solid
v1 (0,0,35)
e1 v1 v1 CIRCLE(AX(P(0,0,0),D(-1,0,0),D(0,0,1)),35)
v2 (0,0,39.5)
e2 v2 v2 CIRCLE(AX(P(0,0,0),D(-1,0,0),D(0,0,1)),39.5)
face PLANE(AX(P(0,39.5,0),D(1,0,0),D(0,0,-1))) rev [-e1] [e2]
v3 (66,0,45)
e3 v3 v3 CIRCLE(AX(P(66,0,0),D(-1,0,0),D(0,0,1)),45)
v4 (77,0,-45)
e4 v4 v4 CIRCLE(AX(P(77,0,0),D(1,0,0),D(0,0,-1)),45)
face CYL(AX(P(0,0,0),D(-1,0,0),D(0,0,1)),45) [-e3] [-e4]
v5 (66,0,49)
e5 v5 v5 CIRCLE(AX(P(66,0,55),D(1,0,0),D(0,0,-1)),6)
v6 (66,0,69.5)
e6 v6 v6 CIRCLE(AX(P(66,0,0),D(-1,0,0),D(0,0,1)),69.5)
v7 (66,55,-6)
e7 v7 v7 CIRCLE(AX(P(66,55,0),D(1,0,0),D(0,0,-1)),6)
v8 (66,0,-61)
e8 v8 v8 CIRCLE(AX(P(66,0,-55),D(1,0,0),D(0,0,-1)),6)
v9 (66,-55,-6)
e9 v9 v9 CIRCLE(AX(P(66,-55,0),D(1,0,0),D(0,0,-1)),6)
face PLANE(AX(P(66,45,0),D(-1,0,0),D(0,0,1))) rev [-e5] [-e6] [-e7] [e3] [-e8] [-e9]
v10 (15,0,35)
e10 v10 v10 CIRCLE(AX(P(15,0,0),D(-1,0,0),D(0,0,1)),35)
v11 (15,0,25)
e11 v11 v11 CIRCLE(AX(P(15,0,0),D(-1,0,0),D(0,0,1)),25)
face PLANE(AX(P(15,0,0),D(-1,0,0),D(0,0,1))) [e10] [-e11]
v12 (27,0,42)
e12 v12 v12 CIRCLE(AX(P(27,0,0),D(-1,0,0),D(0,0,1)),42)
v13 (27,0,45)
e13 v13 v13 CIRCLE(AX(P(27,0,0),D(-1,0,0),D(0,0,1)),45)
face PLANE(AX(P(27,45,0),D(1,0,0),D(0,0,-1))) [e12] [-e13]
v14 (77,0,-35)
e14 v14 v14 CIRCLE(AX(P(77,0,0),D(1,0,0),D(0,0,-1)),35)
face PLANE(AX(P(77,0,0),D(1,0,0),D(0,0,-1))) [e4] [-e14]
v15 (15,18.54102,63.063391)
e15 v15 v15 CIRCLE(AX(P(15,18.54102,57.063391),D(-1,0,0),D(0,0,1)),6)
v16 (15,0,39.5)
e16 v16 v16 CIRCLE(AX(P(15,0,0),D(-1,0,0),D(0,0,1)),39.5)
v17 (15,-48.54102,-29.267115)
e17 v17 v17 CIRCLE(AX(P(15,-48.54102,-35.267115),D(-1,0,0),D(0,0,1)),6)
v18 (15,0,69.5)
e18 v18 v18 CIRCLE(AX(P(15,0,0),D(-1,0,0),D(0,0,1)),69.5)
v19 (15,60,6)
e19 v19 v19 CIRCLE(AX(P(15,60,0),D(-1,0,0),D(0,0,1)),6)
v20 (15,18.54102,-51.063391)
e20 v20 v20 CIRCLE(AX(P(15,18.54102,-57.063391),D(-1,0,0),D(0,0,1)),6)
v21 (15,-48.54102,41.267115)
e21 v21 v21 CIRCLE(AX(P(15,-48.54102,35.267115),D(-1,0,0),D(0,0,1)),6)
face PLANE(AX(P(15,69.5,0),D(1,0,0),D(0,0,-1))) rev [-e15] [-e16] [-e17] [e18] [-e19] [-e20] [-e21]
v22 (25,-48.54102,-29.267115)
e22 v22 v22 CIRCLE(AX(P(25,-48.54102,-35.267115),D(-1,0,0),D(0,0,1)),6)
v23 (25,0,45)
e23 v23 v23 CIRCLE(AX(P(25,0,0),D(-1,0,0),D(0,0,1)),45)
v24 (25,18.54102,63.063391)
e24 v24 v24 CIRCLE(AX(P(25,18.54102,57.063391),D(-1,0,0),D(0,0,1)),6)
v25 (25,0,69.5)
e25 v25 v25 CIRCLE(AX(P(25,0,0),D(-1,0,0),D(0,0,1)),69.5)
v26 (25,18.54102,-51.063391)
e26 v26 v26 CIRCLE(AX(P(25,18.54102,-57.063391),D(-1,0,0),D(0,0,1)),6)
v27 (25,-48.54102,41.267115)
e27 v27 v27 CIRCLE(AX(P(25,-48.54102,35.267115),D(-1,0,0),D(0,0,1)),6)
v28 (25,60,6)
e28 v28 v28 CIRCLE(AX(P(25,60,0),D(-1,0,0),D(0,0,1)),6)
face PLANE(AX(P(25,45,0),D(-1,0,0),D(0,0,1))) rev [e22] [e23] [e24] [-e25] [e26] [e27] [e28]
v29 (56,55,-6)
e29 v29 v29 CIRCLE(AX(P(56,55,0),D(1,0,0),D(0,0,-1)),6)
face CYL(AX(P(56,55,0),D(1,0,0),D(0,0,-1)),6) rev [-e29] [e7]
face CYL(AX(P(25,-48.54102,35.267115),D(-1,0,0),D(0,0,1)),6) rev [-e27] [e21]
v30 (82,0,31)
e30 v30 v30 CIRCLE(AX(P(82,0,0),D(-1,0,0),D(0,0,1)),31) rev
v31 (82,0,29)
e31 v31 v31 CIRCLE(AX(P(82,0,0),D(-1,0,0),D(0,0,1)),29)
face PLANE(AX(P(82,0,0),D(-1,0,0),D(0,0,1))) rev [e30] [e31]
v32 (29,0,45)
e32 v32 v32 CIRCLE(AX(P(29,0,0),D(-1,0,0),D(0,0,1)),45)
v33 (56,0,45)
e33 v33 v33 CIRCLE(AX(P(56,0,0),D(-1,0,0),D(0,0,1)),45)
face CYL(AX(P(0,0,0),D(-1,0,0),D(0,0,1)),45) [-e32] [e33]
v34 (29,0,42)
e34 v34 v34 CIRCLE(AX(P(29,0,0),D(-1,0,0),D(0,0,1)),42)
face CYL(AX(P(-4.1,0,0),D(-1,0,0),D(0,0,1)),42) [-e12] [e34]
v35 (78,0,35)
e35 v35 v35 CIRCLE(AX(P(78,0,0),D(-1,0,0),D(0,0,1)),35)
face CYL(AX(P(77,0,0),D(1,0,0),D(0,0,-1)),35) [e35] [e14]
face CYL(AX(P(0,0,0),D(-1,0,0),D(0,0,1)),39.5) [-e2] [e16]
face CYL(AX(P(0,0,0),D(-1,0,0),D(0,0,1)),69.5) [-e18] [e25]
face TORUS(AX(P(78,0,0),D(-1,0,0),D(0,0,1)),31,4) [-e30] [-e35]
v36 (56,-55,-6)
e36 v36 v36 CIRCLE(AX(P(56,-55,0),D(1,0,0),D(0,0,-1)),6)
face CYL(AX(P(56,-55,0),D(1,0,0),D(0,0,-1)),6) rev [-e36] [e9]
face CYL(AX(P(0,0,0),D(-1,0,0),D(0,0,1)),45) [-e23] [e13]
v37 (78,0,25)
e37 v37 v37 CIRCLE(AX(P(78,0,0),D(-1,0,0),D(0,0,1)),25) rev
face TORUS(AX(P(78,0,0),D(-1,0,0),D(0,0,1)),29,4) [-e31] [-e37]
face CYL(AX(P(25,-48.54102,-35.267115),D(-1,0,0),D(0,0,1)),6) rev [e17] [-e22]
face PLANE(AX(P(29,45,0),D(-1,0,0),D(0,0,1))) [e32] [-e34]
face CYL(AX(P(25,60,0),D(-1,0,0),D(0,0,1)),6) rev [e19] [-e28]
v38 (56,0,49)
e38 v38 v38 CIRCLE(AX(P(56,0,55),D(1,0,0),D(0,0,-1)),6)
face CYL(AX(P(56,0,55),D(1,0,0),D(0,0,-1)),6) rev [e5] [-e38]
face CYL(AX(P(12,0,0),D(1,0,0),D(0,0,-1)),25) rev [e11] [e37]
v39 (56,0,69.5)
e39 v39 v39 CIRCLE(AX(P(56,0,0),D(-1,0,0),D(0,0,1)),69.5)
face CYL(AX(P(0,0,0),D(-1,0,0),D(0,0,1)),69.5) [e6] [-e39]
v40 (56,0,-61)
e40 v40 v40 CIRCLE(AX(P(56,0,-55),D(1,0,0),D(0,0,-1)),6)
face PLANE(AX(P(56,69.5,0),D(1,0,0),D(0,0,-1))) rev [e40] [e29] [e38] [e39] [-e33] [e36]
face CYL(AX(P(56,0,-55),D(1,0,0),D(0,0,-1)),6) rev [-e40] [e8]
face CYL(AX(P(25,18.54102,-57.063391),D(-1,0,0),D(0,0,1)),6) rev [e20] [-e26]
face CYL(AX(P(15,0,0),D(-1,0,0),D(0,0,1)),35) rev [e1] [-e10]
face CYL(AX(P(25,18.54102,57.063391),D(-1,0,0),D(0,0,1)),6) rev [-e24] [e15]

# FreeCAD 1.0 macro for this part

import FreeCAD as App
import Part
import Sketcher
from FreeCAD import Vector
Q = App.Units.Quantity


def edges_at(feature, points):
    """Names of the edges that pass closest to the given points."""
    edges = feature.Shape.Edges
    near = lambda p: min(range(len(edges)), key=lambda i: edges[i].distToShape(Part.Vertex(*p))[0])
    return sorted({f"Edge{near(p) + 1}" for p in points})


def add_polygon(sketch, points):
    """Adds a closed chain of lines whose ends are joined by coincident constraints."""
    first, n = sketch.GeometryCount, len(points)
    for a, b in zip(points, points[1:] + points[:1]):
        sketch.addGeometry(Part.LineSegment(App.Vector(*a, 0), App.Vector(*b, 0)), False)
    for i in range(n):
        sketch.addConstraint(Sketcher.Constraint("Coincident", first + i, 2, first + (i + 1) % n, 1))

doc = App.newDocument("Part")
params = doc.addObject("Spreadsheet::Sheet", "Params")
for row, (alias, value) in enumerate([
    ("sketch1_width", "16 mm"),
    ("sketch1_width2", "10 mm"),
    ("sketch1_width3", "31 mm"),
    ("sketch1_width4", "15 mm"),
    ("sketch1_height", "45 mm"),
    ("revolution_angle", "360 deg"),
    ("sketch2_diameter", "12 mm"),
    ("pocket1_length", "10 mm"),
    ("sketch3_diameter", "12 mm"),
    ("pocket2_length", "10 mm"),
    ("sketch4_diameter", "70 mm"),
    ("pocket3_length", "15 mm"),
    ("sketch5_diameter", "90 mm"),
    ("sketch5_diameter2", "70 mm"),
    ("pocket4_length", "5 mm"),
    ("sketch6_diameter", "50 mm"),
    ("pocket5_length", "70 mm"),
    ("fillet_radius", "4 mm"),
    ("sketch7_width", "2 mm"),
    ("sketch7_height", "3 mm"),
    ("groove_angle", "360 deg"),
], start=1):
    params.set(f"A{row}", alias)
    params.set(f"B{row}", "=" + value)
    params.setAlias(f"B{row}", alias)

body = doc.addObject("PartDesign::Body", "Body")

# Sketch on XY plane
sketch1 = doc.addObject("Sketcher::SketchObject", "Sketch")
body.addObject(sketch1)
sketch1.AttachmentSupport = (doc.XY_Plane, [""])
sketch1.MapMode = "FlatFace"
add_polygon(sketch1, [(82, 0), (82, 45), (66, 45), (66, 70), (56, 70), (56, 45), (25, 45), (25, 70), (15, 70), (15, 40), (0, 40), (0, 0)])  # lines 0-11
sketch1.addConstraint(Sketcher.Constraint("Vertical", 0))
sketch1.addConstraint(Sketcher.Constraint("Horizontal", 1))
sketch1.addConstraint(Sketcher.Constraint("Vertical", 2))
sketch1.addConstraint(Sketcher.Constraint("Horizontal", 3))
sketch1.addConstraint(Sketcher.Constraint("Vertical", 4))
sketch1.addConstraint(Sketcher.Constraint("Horizontal", 5))
sketch1.addConstraint(Sketcher.Constraint("Vertical", 6))
sketch1.addConstraint(Sketcher.Constraint("Horizontal", 7))
sketch1.addConstraint(Sketcher.Constraint("Vertical", 8))
sketch1.addConstraint(Sketcher.Constraint("Horizontal", 9))
sketch1.addConstraint(Sketcher.Constraint("Vertical", 10))
sketch1.addConstraint(Sketcher.Constraint("Horizontal", 11))
sketch1.addConstraint(Sketcher.Constraint("Coincident", 10, 2, -1, 1))
sketch1.addConstraint(Sketcher.Constraint("Horizontal", 1, 2, 4, 2))
sketch1.addConstraint(Sketcher.Constraint("Horizontal", 3, 2, 6, 2))
sketch1.addConstraint(Sketcher.Constraint("Equal", 3, 7))
sketch1.addConstraint(Sketcher.Constraint("DistanceX", 1, 2, 1, 1, Q("16 mm")))
sketch1.addConstraint(Sketcher.Constraint("DistanceX", 3, 2, 3, 1, Q("10 mm")))
sketch1.addConstraint(Sketcher.Constraint("DistanceX", 5, 2, 5, 1, Q("31 mm")))
sketch1.addConstraint(Sketcher.Constraint("DistanceX", 9, 2, 9, 1, Q("15 mm")))
sketch1.addConstraint(Sketcher.Constraint("DistanceY", 0, 1, 0, 2, Q("45 mm")))
sketch1.addConstraint(Sketcher.Constraint("DistanceY", 8, 2, 8, 1, Q("30 mm")))
sketch1.addConstraint(Sketcher.Constraint("DistanceY", 2, 1, 2, 2, Q("24.5 mm")))
sketch1.setExpression("Constraints[28]", "Params.sketch1_width")
sketch1.setExpression("Constraints[29]", "Params.sketch1_width2")
sketch1.setExpression("Constraints[30]", "Params.sketch1_width3")
sketch1.setExpression("Constraints[31]", "Params.sketch1_width4")
sketch1.setExpression("Constraints[32]", "Params.sketch1_height")
revolution = doc.addObject("PartDesign::Revolution", "Revolution")
body.addObject(revolution)
revolution.Profile = sketch1
revolution.ReferenceAxis = (sketch1, ["H_Axis"])
revolution.setExpression("Angle", "Params.revolution_angle")

# Sketch on YZ plane
sketch2 = doc.addObject("Sketcher::SketchObject", "Sketch001")
body.addObject(sketch2)
sketch2.AttachmentSupport = (doc.YZ_Plane, [""])
sketch2.MapMode = "FlatFace"
sketch2.AttachmentOffset = App.Placement(Vector(0, 0, 66), App.Rotation())
sketch2.addGeometry(Part.Circle(Vector(55, 0, 0), Vector(0, 0, 1), 6), False)
sketch2.addGeometry(Part.Circle(Vector(0, -55, 0), Vector(0, 0, 1), 6), False)
sketch2.addGeometry(Part.Circle(Vector(-55, 0, 0), Vector(0, 0, 1), 6), False)
sketch2.addGeometry(Part.Circle(Vector(0, 55, 0), Vector(0, 0, 1), 6), False)
sketch2.addConstraint(Sketcher.Constraint("Equal", 0, 1))
sketch2.addConstraint(Sketcher.Constraint("Equal", 1, 2))
sketch2.addConstraint(Sketcher.Constraint("Equal", 2, 3))
sketch2.addConstraint(Sketcher.Constraint("Symmetric", 0, 3, 2, 3, -1, 1))
sketch2.addConstraint(Sketcher.Constraint("Symmetric", 1, 3, 3, 3, -1, 1))
sketch2.addConstraint(Sketcher.Constraint("PointOnObject", 0, 3, -1))
sketch2.addConstraint(Sketcher.Constraint("PointOnObject", 1, 3, -2))
sketch2.addConstraint(Sketcher.Constraint("Diameter", 0, Q("12 mm")))
sketch2.addConstraint(Sketcher.Constraint("DistanceX", -1, 1, 0, 3, Q("55 mm")))
sketch2.addConstraint(Sketcher.Constraint("DistanceY", 1, 3, -1, 1, Q("55 mm")))
sketch2.setExpression("Constraints[7]", "Params.sketch2_diameter")
pocket1 = doc.addObject("PartDesign::Pocket", "Pocket")
body.addObject(pocket1)
pocket1.Profile = sketch2
pocket1.setExpression("Length", "Params.pocket1_length")

# Sketch on YZ plane
sketch3 = doc.addObject("Sketcher::SketchObject", "Sketch002")
body.addObject(sketch3)
sketch3.AttachmentSupport = (doc.YZ_Plane, [""])
sketch3.MapMode = "FlatFace"
sketch3.AttachmentOffset = App.Placement(Vector(0, 0, 15), App.Rotation())
sketch3.addGeometry(Part.Circle(Vector(60, 0, 0), Vector(0, 0, 1), 6), False)
sketch3.addGeometry(Part.Circle(Vector(19, 57, 0), Vector(0, 0, 1), 6), False)
sketch3.addGeometry(Part.Circle(Vector(-49, 35, 0), Vector(0, 0, 1), 6), False)
sketch3.addGeometry(Part.Circle(Vector(-49, -35, 0), Vector(0, 0, 1), 6), False)
sketch3.addGeometry(Part.Circle(Vector(19, -57, 0), Vector(0, 0, 1), 6), False)
sketch3.addConstraint(Sketcher.Constraint("Equal", 0, 1))
sketch3.addConstraint(Sketcher.Constraint("Equal", 1, 2))
sketch3.addConstraint(Sketcher.Constraint("Equal", 2, 3))
sketch3.addConstraint(Sketcher.Constraint("Equal", 3, 4))
sketch3.addConstraint(Sketcher.Constraint("Symmetric", 2, 3, 3, 3, -1))
sketch3.addConstraint(Sketcher.Constraint("Symmetric", 1, 3, 4, 3, -1))
sketch3.addConstraint(Sketcher.Constraint("PointOnObject", 0, 3, -1))
sketch3.addConstraint(Sketcher.Constraint("Diameter", 0, Q("12 mm")))
sketch3.addConstraint(Sketcher.Constraint("DistanceX", -1, 1, 0, 3, Q("60 mm")))
sketch3.addConstraint(Sketcher.Constraint("DistanceX", -1, 1, 1, 3, Q("18.54102 mm")))
sketch3.addConstraint(Sketcher.Constraint("DistanceY", -1, 1, 1, 3, Q("57.063391 mm")))
sketch3.addConstraint(Sketcher.Constraint("DistanceX", 2, 3, -1, 1, Q("48.54102 mm")))
sketch3.addConstraint(Sketcher.Constraint("DistanceY", 3, 3, 2, 3, Q("70.53423 mm")))
sketch3.setExpression("Constraints[7]", "Params.sketch3_diameter")
pocket2 = doc.addObject("PartDesign::Pocket", "Pocket001")
body.addObject(pocket2)
pocket2.Profile = sketch3
pocket2.setExpression("Length", "Params.pocket2_length")
pocket2.Reversed = True

# Sketch on YZ plane
sketch4 = doc.addObject("Sketcher::SketchObject", "Sketch003")
body.addObject(sketch4)
sketch4.AttachmentSupport = (doc.YZ_Plane, [""])
sketch4.MapMode = "FlatFace"
sketch4.addGeometry(Part.Circle(Vector(0, 0, 0), Vector(0, 0, 1), 35), False)
sketch4.addConstraint(Sketcher.Constraint("Coincident", 0, 3, -1, 1))
sketch4.addConstraint(Sketcher.Constraint("Diameter", 0, Q("70 mm")))
sketch4.setExpression("Constraints[1]", "Params.sketch4_diameter")
pocket3 = doc.addObject("PartDesign::Pocket", "Pocket002")
body.addObject(pocket3)
pocket3.Profile = sketch4
pocket3.setExpression("Length", "Params.pocket3_length")
pocket3.Reversed = True

# Sketch on YZ plane
sketch5 = doc.addObject("Sketcher::SketchObject", "Sketch004")
body.addObject(sketch5)
sketch5.AttachmentSupport = (doc.YZ_Plane, [""])
sketch5.MapMode = "FlatFace"
sketch5.AttachmentOffset = App.Placement(Vector(0, 0, 77), App.Rotation())
sketch5.addGeometry(Part.Circle(Vector(0, 0, 0), Vector(0, 0, 1), 45), False)
sketch5.addGeometry(Part.Circle(Vector(0, 0, 0), Vector(0, 0, 1), 35), False)
sketch5.addConstraint(Sketcher.Constraint("Coincident", 0, 3, -1, 1))
sketch5.addConstraint(Sketcher.Constraint("Coincident", 1, 3, -1, 1))
sketch5.addConstraint(Sketcher.Constraint("Diameter", 0, Q("90 mm")))
sketch5.addConstraint(Sketcher.Constraint("Diameter", 1, Q("70 mm")))
sketch5.setExpression("Constraints[2]", "Params.sketch5_diameter")
sketch5.setExpression("Constraints[3]", "Params.sketch5_diameter2")
pocket4 = doc.addObject("PartDesign::Pocket", "Pocket003")
body.addObject(pocket4)
pocket4.Profile = sketch5
pocket4.setExpression("Length", "Params.pocket4_length")
pocket4.Reversed = True

# Sketch on YZ plane
sketch6 = doc.addObject("Sketcher::SketchObject", "Sketch005")
body.addObject(sketch6)
sketch6.AttachmentSupport = (doc.YZ_Plane, [""])
sketch6.MapMode = "FlatFace"
sketch6.AttachmentOffset = App.Placement(Vector(0, 0, 82), App.Rotation())
sketch6.addGeometry(Part.Circle(Vector(0, 0, 0), Vector(0, 0, 1), 25), False)
sketch6.addConstraint(Sketcher.Constraint("Coincident", 0, 3, -1, 1))
sketch6.addConstraint(Sketcher.Constraint("Diameter", 0, Q("50 mm")))
sketch6.setExpression("Constraints[1]", "Params.sketch6_diameter")
pocket5 = doc.addObject("PartDesign::Pocket", "Pocket004")
body.addObject(pocket5)
pocket5.Profile = sketch6
pocket5.setExpression("Length", "Params.pocket5_length")
doc.recompute()

fillet = doc.addObject("PartDesign::Fillet", "Fillet")
body.addObject(fillet)
fillet.Base = (pocket5, edges_at(pocket5, [(82, 0, -35), (82, 0, 25)]))
fillet.setExpression("Radius", "Params.fillet_radius")

# Sketch on XY plane
sketch7 = doc.addObject("Sketcher::SketchObject", "Sketch006")
body.addObject(sketch7)
sketch7.AttachmentSupport = (doc.XY_Plane, [""])
sketch7.MapMode = "FlatFace"
add_polygon(sketch7, [(27, 45), (27, 42), (29, 42), (29, 45)])  # lines 0-3
sketch7.addConstraint(Sketcher.Constraint("Vertical", 0))
sketch7.addConstraint(Sketcher.Constraint("Horizontal", 1))
sketch7.addConstraint(Sketcher.Constraint("Vertical", 2))
sketch7.addConstraint(Sketcher.Constraint("Horizontal", 3))
sketch7.addConstraint(Sketcher.Constraint("DistanceX", 1, 1, 1, 2, Q("2 mm")))
sketch7.addConstraint(Sketcher.Constraint("DistanceY", 0, 2, 0, 1, Q("3 mm")))
sketch7.addConstraint(Sketcher.Constraint("DistanceX", -1, 1, 0, 2, Q("27 mm")))
sketch7.addConstraint(Sketcher.Constraint("DistanceY", -1, 1, 0, 2, Q("42 mm")))
sketch7.setExpression("Constraints[8]", "Params.sketch7_width")
sketch7.setExpression("Constraints[9]", "Params.sketch7_height")
groove = doc.addObject("PartDesign::Groove", "Groove")
body.addObject(groove)
groove.Profile = sketch7
groove.ReferenceAxis = (sketch7, ["H_Axis"])
groove.setExpression("Angle", "Params.groove_angle")

doc.recompute()
